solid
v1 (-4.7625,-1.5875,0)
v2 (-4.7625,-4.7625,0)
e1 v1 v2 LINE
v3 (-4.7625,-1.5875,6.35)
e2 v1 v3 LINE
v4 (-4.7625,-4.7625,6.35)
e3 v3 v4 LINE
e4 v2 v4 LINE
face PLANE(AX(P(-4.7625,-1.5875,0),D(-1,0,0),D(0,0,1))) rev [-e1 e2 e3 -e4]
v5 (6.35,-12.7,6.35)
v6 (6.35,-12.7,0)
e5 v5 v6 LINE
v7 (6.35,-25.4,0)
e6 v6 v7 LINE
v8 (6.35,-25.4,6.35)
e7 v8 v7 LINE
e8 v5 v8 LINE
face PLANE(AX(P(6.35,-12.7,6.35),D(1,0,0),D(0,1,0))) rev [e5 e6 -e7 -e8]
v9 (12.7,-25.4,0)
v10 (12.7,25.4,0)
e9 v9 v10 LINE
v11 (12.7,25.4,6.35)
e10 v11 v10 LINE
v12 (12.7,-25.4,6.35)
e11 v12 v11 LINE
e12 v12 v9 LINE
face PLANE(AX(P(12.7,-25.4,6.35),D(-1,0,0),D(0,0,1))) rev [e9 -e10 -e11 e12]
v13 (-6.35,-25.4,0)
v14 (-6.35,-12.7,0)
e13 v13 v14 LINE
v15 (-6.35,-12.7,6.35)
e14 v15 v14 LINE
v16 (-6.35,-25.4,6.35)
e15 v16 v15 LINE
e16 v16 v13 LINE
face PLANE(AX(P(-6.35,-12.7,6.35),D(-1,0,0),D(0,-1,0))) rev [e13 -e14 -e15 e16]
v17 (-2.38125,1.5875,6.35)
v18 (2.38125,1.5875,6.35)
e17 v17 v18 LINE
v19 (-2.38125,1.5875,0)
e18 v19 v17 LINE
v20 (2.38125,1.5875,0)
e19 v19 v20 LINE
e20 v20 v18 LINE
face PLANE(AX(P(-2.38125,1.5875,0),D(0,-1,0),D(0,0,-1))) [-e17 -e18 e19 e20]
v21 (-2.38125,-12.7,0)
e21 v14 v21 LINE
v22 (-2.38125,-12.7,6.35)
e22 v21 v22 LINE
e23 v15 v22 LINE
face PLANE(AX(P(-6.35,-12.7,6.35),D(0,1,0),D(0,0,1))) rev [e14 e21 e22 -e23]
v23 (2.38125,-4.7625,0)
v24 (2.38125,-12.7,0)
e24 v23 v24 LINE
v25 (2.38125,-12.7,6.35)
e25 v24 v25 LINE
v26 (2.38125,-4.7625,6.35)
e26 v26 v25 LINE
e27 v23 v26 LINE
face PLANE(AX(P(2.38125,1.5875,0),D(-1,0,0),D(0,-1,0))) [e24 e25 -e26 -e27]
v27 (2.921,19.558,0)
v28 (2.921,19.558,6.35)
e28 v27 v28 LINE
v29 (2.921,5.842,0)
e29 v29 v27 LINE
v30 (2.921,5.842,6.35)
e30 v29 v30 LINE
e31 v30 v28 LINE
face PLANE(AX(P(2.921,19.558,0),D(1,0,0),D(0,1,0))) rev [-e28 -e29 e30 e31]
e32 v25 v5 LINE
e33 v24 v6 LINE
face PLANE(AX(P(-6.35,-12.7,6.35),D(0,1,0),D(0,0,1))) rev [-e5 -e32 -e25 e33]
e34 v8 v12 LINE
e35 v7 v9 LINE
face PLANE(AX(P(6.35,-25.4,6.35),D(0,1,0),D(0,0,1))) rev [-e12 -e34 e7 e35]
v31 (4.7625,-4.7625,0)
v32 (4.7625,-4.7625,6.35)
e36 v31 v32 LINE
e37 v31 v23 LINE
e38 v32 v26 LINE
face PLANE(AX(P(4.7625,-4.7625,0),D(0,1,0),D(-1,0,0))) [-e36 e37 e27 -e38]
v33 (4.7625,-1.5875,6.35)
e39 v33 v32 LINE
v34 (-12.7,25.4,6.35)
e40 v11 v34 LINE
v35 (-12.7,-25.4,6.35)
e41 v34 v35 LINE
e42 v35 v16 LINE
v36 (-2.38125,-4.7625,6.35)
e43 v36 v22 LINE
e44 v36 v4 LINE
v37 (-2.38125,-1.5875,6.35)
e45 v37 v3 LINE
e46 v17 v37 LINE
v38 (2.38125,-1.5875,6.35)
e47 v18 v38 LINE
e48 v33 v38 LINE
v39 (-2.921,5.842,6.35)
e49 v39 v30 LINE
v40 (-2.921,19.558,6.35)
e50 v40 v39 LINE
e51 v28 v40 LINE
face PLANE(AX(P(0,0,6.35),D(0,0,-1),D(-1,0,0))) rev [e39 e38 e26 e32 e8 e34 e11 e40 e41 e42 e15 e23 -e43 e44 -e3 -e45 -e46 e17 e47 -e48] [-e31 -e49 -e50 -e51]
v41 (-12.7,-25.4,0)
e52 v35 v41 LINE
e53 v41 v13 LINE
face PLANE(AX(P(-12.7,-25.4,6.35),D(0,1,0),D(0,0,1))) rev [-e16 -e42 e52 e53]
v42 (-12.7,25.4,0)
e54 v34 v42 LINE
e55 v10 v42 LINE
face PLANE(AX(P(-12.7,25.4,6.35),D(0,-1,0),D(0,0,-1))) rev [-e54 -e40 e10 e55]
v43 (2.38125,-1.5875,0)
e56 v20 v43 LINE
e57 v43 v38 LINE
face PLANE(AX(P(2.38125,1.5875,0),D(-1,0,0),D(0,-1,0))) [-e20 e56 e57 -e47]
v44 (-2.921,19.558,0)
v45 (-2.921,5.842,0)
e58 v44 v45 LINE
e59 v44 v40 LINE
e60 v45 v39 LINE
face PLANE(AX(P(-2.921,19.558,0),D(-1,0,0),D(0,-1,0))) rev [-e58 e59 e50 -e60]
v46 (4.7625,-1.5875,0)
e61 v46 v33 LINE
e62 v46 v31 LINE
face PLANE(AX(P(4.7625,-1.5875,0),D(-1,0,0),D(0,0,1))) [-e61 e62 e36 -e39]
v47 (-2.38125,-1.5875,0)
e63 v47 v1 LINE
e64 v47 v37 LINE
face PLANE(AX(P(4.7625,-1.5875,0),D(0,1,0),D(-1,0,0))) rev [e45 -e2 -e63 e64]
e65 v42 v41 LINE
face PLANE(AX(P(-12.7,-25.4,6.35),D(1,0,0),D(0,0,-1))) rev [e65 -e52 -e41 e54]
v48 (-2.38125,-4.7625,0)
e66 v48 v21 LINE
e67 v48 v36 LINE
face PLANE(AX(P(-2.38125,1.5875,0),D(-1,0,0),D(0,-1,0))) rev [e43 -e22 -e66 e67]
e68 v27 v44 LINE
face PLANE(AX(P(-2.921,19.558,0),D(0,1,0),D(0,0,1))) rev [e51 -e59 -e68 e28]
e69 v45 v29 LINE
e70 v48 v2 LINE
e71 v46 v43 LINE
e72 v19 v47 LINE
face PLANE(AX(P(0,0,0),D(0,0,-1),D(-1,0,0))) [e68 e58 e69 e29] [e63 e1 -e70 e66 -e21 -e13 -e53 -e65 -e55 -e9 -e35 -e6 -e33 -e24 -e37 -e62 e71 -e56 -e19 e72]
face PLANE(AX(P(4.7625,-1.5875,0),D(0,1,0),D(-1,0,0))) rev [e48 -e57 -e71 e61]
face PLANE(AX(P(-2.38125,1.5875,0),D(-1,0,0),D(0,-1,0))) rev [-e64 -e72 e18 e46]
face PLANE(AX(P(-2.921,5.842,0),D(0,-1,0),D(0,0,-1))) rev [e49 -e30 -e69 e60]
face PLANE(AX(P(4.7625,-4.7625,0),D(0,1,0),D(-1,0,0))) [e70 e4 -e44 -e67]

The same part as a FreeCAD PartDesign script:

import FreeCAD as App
import Part
import Sketcher
Q = App.Units.Quantity


def add_polygon(sketch, points):
    """Adds a closed chain of lines whose ends are joined by coincident constraints."""
    first, n = sketch.GeometryCount, len(points)
    for a, b in zip(points, points[1:] + points[:1]):
        sketch.addGeometry(Part.LineSegment(App.Vector(*a, 0), App.Vector(*b, 0)), False)
    for i in range(n):
        sketch.addConstraint(Sketcher.Constraint("Coincident", first + i, 2, first + (i + 1) % n, 1))

doc = App.newDocument("Part")
body = doc.addObject("PartDesign::Body", "Body")

sketch1 = body.newObject("Sketcher::SketchObject", "Sketch")
sketch1.AttachmentSupport = (doc.getObject("XY_Plane"), [""])
sketch1.MapMode = "FlatFace"
add_polygon(sketch1, [(6, -25), (13, -25), (13, 25), (-13, 25), (-13, -25), (-6, -25), (-6, -13), (6, -13)])
sketch1.addConstraint(Sketcher.Constraint("Horizontal", 0))
sketch1.addConstraint(Sketcher.Constraint("Vertical", 1))
sketch1.addConstraint(Sketcher.Constraint("Horizontal", 2))
sketch1.addConstraint(Sketcher.Constraint("Vertical", 3))
sketch1.addConstraint(Sketcher.Constraint("Horizontal", 4))
sketch1.addConstraint(Sketcher.Constraint("Vertical", 5))
sketch1.addConstraint(Sketcher.Constraint("Horizontal", 6))
sketch1.addConstraint(Sketcher.Constraint("Vertical", 7))
sketch1.addConstraint(Sketcher.Constraint("Symmetric", 0, 2, 2, 2, -1, 1))
sketch1.addConstraint(Sketcher.Constraint("Symmetric", 4, 2, 7, 2, -2))
sketch1.addConstraint(Sketcher.Constraint("Equal", 6, 5))
sketch1.addConstraint(Sketcher.Constraint("DistanceX", 2, 2, 2, 1, Q("1 in")))
sketch1.addConstraint(Sketcher.Constraint("DistanceY", 1, 1, 1, 2, Q("2 in")))
sketch1.addConstraint(Sketcher.Constraint("DistanceX", 6, 1, 6, 2, Q("0.5 in")))
pad1 = body.newObject("PartDesign::Pad", "Pad")
pad1.Profile = sketch1
pad1.Length = Q("0.25 in")

sketch2 = body.newObject("Sketcher::SketchObject", "Sketch001")
sketch2.AttachmentSupport = (doc.getObject("XY_Plane"), [""])
sketch2.MapMode = "FlatFace"
sketch2.AttachmentOffset = App.Placement(App.Vector(0, 0, 0.25 * 25.4), App.Rotation())
add_polygon(sketch2, [(-2.4, -4.8), (-2.4, -12.7), (2.4, -12.7), (2.4, -4.8), (4.8, -4.8), (4.8, -1.6), (2.4, -1.6), (2.4, 1.6), (-2.4, 1.6), (-2.4, -1.6), (-4.8, -1.6), (-4.8, -4.8)])
sketch2.addConstraint(Sketcher.Constraint("Vertical", 0))
sketch2.addConstraint(Sketcher.Constraint("Horizontal", 1))
sketch2.addConstraint(Sketcher.Constraint("Vertical", 2))
sketch2.addConstraint(Sketcher.Constraint("Horizontal", 3))
sketch2.addConstraint(Sketcher.Constraint("Vertical", 4))
sketch2.addConstraint(Sketcher.Constraint("Horizontal", 5))
sketch2.addConstraint(Sketcher.Constraint("Vertical", 6))
sketch2.addConstraint(Sketcher.Constraint("Horizontal", 7))
sketch2.addConstraint(Sketcher.Constraint("Vertical", 8))
sketch2.addConstraint(Sketcher.Constraint("Horizontal", 9))
sketch2.addConstraint(Sketcher.Constraint("Vertical", 10))
sketch2.addConstraint(Sketcher.Constraint("Horizontal", 11))
sketch2.addConstraint(Sketcher.Constraint("Symmetric", 5, 2, 7, 2, -1, 1))
sketch2.addConstraint(Sketcher.Constraint("Symmetric", 4, 2, 9, 2, -2))
sketch2.addConstraint(Sketcher.Constraint("Symmetric", 2, 2, 11, 2, -2))
sketch2.addConstraint(Sketcher.Constraint("Vertical", 2, 2, 5, 2))
sketch2.addConstraint(Sketcher.Constraint("Equal", 4, 6))
sketch2.addConstraint(Sketcher.Constraint("DistanceY", 0, 2, -1, 1, Q("0.5 in")))
sketch2.addConstraint(Sketcher.Constraint("DistanceX", 1, 1, 1, 2, Q("0.1875 in")))
sketch2.addConstraint(Sketcher.Constraint("DistanceX", 3, 1, 3, 2, Q("0.09375 in")))
sketch2.addConstraint(Sketcher.Constraint("DistanceY", 0, 2, 0, 1, Q("0.3125 in")))
pocket1 = body.newObject("PartDesign::Pocket", "Pocket")
pocket1.Profile = sketch2
pocket1.Length = Q("0.25 in")

sketch3 = body.newObject("Sketcher::SketchObject", "Sketch002")
sketch3.AttachmentSupport = (doc.getObject("XY_Plane"), [""])
sketch3.MapMode = "FlatFace"
sketch3.AttachmentOffset = App.Placement(App.Vector(0, 0, 0.25 * 25.4), App.Rotation())
add_polygon(sketch3, [(-3, 20), (-3, 6), (3, 6), (3, 20)])
sketch3.addConstraint(Sketcher.Constraint("Vertical", 0))
sketch3.addConstraint(Sketcher.Constraint("Horizontal", 1))
sketch3.addConstraint(Sketcher.Constraint("Vertical", 2))
sketch3.addConstraint(Sketcher.Constraint("Horizontal", 3))
sketch3.addConstraint(Sketcher.Constraint("DistanceX", 1, 1, 1, 2, Q("0.23 in")))
sketch3.addConstraint(Sketcher.Constraint("DistanceY", 0, 2, 0, 1, Q("0.54 in")))
sketch3.addConstraint(Sketcher.Constraint("DistanceY", -1, 1, 0, 2, Q("0.23 in")))
sketch3.addConstraint(Sketcher.Constraint("DistanceX", 0, 2, -1, 1, Q("0.115 in")))
pocket2 = body.newObject("PartDesign::Pocket", "Pocket001")
pocket2.Profile = sketch3
pocket2.Length = Q("0.25 in")

doc.recompute()
